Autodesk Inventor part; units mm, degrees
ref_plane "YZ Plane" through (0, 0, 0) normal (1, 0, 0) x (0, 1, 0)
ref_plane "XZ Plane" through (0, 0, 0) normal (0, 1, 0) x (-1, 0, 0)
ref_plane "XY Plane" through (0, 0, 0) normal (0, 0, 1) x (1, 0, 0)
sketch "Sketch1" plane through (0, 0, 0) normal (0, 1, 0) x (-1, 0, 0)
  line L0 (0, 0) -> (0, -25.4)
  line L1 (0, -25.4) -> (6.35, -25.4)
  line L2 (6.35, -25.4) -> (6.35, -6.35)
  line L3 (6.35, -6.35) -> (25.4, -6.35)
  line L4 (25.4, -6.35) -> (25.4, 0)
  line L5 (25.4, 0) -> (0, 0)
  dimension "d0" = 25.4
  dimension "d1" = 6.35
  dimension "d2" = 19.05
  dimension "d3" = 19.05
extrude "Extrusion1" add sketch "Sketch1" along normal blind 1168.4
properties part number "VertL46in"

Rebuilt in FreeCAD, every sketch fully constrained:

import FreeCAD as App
import Part
import Sketcher
Q = App.Units.Quantity

doc = App.newDocument("Part")
params = doc.addObject("Spreadsheet::Sheet", "Params")
for row, (alias, value) in enumerate([
    ("sketch1_width", "1 in"),
    ("sketch1_width2", "0.25 in"),
    ("pad1_length", "46 in"),
], start=1):
    params.set(f"A{row}", alias)
    params.set(f"B{row}", "=" + value)
    params.setAlias(f"B{row}", alias)

body = doc.addObject("PartDesign::Body", "Body")

sketch1 = doc.addObject("Sketcher::SketchObject", "Sketch")
body.addObject(sketch1)
sketch1.AttachmentSupport = (doc.XZ_Plane, [""])
sketch1.MapMode = "FlatFace"
sketch1.addGeometry(Part.LineSegment(App.Vector(-25.4, 0, 0), App.Vector(0, 0, 0)), False)
sketch1.addGeometry(Part.LineSegment(App.Vector(0, 0, 0), App.Vector(0, -25.4, 0)), False)
sketch1.addGeometry(Part.LineSegment(App.Vector(0, -25.4, 0), App.Vector(-6.35, -25.4, 0)), False)
sketch1.addGeometry(Part.LineSegment(App.Vector(-6.35, -25.4, 0), App.Vector(-6.35, -6.35, 0)), False)
sketch1.addGeometry(Part.LineSegment(App.Vector(-6.35, -6.35, 0), App.Vector(-25.4, -6.35, 0)), False)
sketch1.addGeometry(Part.LineSegment(App.Vector(-25.4, -6.35, 0), App.Vector(-25.4, 0, 0)), False)
sketch1.addConstraint(Sketcher.Constraint("Coincident", 0, 2, 1, 1))
sketch1.addConstraint(Sketcher.Constraint("Coincident", 1, 2, 2, 1))
sketch1.addConstraint(Sketcher.Constraint("Coincident", 2, 2, 3, 1))
sketch1.addConstraint(Sketcher.Constraint("Coincident", 3, 2, 4, 1))
sketch1.addConstraint(Sketcher.Constraint("Coincident", 4, 2, 5, 1))
sketch1.addConstraint(Sketcher.Constraint("Coincident", 5, 2, 0, 1))
sketch1.addConstraint(Sketcher.Constraint("Horizontal", 0))
sketch1.addConstraint(Sketcher.Constraint("Vertical", 1))
sketch1.addConstraint(Sketcher.Constraint("Horizontal", 2))
sketch1.addConstraint(Sketcher.Constraint("Vertical", 3))
sketch1.addConstraint(Sketcher.Constraint("Horizontal", 4))
sketch1.addConstraint(Sketcher.Constraint("Vertical", 5))
sketch1.addConstraint(Sketcher.Constraint("Coincident", 0, 2, -1, 1))
sketch1.addConstraint(Sketcher.Constraint("Equal", 0, 1))
sketch1.addConstraint(Sketcher.Constraint("Equal", 4, 3))
sketch1.addConstraint(Sketcher.Constraint("DistanceX", 0, 1, 0, 2, Q("1 in")))
sketch1.addConstraint(Sketcher.Constraint("DistanceX", 2, 2, 2, 1, Q("0.25 in")))
sketch1.setExpression("Constraints[15]", "Params.sketch1_width")
sketch1.setExpression("Constraints[16]", "Params.sketch1_width2")
pad1 = doc.addObject("PartDesign::Pad", "Pad")
body.addObject(pad1)
pad1.Profile = sketch1
pad1.setExpression("Length", "Params.pad1_length")
pad1.Reversed = True

doc.recompute()
